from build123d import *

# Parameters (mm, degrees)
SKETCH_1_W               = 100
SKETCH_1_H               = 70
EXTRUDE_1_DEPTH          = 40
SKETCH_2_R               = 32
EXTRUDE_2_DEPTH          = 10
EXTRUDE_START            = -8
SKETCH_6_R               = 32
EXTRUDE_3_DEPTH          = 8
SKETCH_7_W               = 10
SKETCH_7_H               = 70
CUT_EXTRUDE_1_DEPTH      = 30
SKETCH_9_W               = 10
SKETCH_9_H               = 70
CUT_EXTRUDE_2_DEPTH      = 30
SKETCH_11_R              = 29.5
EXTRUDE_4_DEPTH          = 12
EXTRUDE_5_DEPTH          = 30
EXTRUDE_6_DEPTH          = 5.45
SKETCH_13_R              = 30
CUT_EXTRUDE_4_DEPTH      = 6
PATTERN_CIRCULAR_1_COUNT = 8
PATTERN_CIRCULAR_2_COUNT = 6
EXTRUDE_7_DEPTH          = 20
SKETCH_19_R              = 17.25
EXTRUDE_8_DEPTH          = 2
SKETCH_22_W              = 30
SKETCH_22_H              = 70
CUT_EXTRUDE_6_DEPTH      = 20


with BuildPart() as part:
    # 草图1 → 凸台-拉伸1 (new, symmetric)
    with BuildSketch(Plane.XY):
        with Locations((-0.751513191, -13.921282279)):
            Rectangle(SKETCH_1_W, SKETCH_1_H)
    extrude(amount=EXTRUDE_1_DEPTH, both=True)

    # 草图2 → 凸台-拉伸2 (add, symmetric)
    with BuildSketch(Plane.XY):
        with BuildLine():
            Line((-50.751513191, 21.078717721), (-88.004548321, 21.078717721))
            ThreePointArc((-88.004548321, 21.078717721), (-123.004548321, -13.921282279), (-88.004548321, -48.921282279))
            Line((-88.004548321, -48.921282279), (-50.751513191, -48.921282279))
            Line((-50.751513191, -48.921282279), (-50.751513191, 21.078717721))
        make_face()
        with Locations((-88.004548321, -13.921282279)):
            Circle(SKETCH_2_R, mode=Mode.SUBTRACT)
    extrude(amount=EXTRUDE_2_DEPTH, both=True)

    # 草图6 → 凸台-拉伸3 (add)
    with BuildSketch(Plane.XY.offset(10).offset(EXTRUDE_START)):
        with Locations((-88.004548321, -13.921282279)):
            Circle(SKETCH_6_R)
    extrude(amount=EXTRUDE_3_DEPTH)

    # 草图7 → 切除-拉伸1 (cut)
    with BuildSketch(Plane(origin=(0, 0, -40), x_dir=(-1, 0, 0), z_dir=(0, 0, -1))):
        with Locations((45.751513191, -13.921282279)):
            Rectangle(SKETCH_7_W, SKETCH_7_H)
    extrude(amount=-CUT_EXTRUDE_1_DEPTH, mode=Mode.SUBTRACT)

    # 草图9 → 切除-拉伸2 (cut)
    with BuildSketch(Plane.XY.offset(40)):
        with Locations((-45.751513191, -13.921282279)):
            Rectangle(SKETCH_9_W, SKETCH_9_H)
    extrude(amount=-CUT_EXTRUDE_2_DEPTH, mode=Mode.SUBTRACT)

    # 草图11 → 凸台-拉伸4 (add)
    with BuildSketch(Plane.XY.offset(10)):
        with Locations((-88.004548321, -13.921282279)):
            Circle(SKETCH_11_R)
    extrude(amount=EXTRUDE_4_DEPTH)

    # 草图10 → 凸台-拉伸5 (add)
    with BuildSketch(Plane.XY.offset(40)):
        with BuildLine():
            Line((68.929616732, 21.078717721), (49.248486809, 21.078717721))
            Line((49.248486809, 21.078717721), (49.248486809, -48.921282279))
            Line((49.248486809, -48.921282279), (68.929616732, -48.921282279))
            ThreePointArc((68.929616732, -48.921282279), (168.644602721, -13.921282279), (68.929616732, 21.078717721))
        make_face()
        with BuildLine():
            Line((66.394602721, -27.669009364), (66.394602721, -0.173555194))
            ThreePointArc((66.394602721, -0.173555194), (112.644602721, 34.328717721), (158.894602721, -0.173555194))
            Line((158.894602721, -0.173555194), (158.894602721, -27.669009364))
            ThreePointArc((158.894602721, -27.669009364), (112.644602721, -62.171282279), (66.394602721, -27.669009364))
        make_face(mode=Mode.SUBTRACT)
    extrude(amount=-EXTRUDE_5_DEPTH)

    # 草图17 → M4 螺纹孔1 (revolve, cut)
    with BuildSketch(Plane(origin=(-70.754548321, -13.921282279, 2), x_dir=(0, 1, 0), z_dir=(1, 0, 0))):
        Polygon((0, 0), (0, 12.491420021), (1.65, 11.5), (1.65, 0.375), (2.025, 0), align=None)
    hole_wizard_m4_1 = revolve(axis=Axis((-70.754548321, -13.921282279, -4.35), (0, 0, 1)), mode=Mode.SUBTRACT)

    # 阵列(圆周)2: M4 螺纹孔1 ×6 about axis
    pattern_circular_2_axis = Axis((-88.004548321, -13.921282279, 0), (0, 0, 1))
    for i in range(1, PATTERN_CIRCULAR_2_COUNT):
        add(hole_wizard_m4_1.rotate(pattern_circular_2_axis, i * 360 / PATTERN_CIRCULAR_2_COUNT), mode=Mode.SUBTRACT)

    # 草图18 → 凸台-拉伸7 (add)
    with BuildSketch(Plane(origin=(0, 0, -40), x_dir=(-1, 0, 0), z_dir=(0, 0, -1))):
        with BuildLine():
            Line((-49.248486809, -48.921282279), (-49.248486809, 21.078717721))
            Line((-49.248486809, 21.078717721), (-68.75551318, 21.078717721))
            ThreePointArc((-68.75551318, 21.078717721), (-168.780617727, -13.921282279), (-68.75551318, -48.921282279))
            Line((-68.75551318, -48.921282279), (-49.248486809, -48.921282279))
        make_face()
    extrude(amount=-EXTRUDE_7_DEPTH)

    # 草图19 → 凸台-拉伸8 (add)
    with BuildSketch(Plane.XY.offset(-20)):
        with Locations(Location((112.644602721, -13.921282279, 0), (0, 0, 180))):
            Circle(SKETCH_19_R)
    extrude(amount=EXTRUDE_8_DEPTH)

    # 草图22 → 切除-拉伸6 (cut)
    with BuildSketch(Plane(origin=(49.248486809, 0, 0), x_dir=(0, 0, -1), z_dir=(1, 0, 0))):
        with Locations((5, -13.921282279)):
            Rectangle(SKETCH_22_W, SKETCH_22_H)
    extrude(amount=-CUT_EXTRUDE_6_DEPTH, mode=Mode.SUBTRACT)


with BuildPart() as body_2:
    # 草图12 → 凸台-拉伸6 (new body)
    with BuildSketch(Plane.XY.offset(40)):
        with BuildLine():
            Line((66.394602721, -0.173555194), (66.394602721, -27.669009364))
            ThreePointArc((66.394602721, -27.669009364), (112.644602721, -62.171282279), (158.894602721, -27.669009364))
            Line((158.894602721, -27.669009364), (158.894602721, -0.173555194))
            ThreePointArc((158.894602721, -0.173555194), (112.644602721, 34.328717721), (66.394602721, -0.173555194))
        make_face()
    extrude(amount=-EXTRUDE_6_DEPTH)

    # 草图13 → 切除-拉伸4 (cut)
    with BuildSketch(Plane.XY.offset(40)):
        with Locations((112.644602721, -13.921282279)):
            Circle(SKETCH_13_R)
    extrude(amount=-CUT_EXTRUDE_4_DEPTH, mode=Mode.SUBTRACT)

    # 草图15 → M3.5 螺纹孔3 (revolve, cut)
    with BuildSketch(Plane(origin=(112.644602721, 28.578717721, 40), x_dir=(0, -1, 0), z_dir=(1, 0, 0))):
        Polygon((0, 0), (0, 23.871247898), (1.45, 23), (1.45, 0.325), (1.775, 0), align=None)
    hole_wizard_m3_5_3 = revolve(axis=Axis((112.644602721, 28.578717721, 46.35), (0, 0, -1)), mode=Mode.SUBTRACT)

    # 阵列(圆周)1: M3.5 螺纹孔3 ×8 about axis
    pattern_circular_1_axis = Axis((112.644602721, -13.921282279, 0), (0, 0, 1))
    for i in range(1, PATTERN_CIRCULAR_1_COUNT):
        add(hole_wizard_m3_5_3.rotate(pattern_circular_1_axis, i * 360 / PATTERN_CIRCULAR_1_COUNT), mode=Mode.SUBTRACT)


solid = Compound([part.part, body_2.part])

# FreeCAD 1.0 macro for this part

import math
import FreeCAD as App
import Part
import Sketcher
Q = App.Units.Quantity

doc = App.newDocument("Part")
body = doc.addObject("PartDesign::Body", "Body")

sketch1 = body.newObject("Sketcher::SketchObject", "Sketch")
sketch1.AttachmentSupport = (doc.getObject("XY_Plane"), [""])
sketch1.MapMode = "FlatFace"
sketch1.addGeometry(Part.LineSegment(App.Vector(-51, 21, 0), App.Vector(-51, -49, 0)), False)
sketch1.addGeometry(Part.LineSegment(App.Vector(-51, -49, 0), App.Vector(49, -49, 0)), False)
sketch1.addGeometry(Part.LineSegment(App.Vector(49, -49, 0), App.Vector(49, 21, 0)), False)
sketch1.addGeometry(Part.LineSegment(App.Vector(49, 21, 0), App.Vector(-51, 21, 0)), False)
sketch1.addConstraint(Sketcher.Constraint("Coincident", 0, 2, 1, 1))
sketch1.addConstraint(Sketcher.Constraint("Coincident", 1, 2, 2, 1))
sketch1.addConstraint(Sketcher.Constraint("Coincident", 2, 2, 3, 1))
sketch1.addConstraint(Sketcher.Constraint("Coincident", 3, 2, 0, 1))
sketch1.addConstraint(Sketcher.Constraint("Vertical", 0))
sketch1.addConstraint(Sketcher.Constraint("Horizontal", 1))
sketch1.addConstraint(Sketcher.Constraint("Vertical", 2))
sketch1.addConstraint(Sketcher.Constraint("Horizontal", 3))
sketch1.addConstraint(Sketcher.Constraint("DistanceX", 1, 1, 1, 2, Q("100 mm")))
sketch1.addConstraint(Sketcher.Constraint("DistanceY", 0, 2, 0, 1, Q("70 mm")))
sketch1.addConstraint(Sketcher.Constraint("DistanceX", 0, 2, -1, 1, Q("50.751513 mm")))
sketch1.addConstraint(Sketcher.Constraint("DistanceY", 0, 2, -1, 1, Q("48.921282 mm")))
pad1 = body.newObject("PartDesign::Pad", "Pad")
pad1.Profile = sketch1
pad1.Length = 80
pad1.Midplane = True

sketch2 = body.newObject("Sketcher::SketchObject", "Sketch001")
sketch2.AttachmentSupport = (doc.getObject("XY_Plane"), [""])
sketch2.MapMode = "FlatFace"
sketch2.addGeometry(Part.LineSegment(App.Vector(-51, 21, 0), App.Vector(-88, 21, 0)), False)
sketch2.addGeometry(Part.ArcOfCircle(Part.Circle(App.Vector(-88, -14, 0), App.Vector(0, 0, 1), 35), math.radians(90), math.radians(270)), False)
sketch2.addGeometry(Part.LineSegment(App.Vector(-88, -49, 0), App.Vector(-51, -49, 0)), False)
sketch2.addGeometry(Part.LineSegment(App.Vector(-51, -49, 0), App.Vector(-51, 21, 0)), False)
sketch2.addGeometry(Part.Circle(App.Vector(-88, -14, 0), App.Vector(0, 0, 1), 32), False)
sketch2.addConstraint(Sketcher.Constraint("Tangent", 0, 2, 1, 1))
sketch2.addConstraint(Sketcher.Constraint("Tangent", 1, 2, 2, 1))
sketch2.addConstraint(Sketcher.Constraint("Coincident", 2, 2, 3, 1))
sketch2.addConstraint(Sketcher.Constraint("Coincident", 3, 2, 0, 1))
sketch2.addConstraint(Sketcher.Constraint("Horizontal", 0))
sketch2.addConstraint(Sketcher.Constraint("Horizontal", 2))
sketch2.addConstraint(Sketcher.Constraint("Vertical", 3))
sketch2.addConstraint(Sketcher.Constraint("Coincident", 4, 3, 1, 3))
sketch2.addConstraint(Sketcher.Constraint("Diameter", 4, Q("64 mm")))
sketch2.addConstraint(Sketcher.Constraint("Radius", 1, Q("35 mm")))
sketch2.addConstraint(Sketcher.Constraint("DistanceX", 0, 2, 0, 1, Q("37.253035 mm")))
sketch2.addConstraint(Sketcher.Constraint("DistanceX", 1, 3, -1, 1, Q("88.004548 mm")))
sketch2.addConstraint(Sketcher.Constraint("DistanceY", 1, 3, -1, 1, Q("13.921282 mm")))
pad2 = body.newObject("PartDesign::Pad", "Pad001")
pad2.Profile = sketch2
pad2.Length = 20
pad2.Midplane = True

sketch3 = body.newObject("Sketcher::SketchObject", "Sketch002")
sketch3.AttachmentSupport = (doc.getObject("XY_Plane"), [""])
sketch3.MapMode = "FlatFace"
sketch3.AttachmentOffset = App.Placement(App.Vector(0, 0, 2), App.Rotation())
sketch3.addGeometry(Part.Circle(App.Vector(-88, -14, 0), App.Vector(0, 0, 1), 32), False)
sketch3.addConstraint(Sketcher.Constraint("Diameter", 0, Q("64 mm")))
sketch3.addConstraint(Sketcher.Constraint("DistanceX", 0, 3, -1, 1, Q("88.004548 mm")))
sketch3.addConstraint(Sketcher.Constraint("DistanceY", 0, 3, -1, 1, Q("13.921282 mm")))
pad3 = body.newObject("PartDesign::Pad", "Pad002")
pad3.Profile = sketch3
pad3.Length = 8

sketch4 = body.newObject("Sketcher::SketchObject", "Sketch003")
sketch4.AttachmentSupport = (doc.getObject("XY_Plane"), [""])
sketch4.MapMode = "FlatFace"
sketch4.AttachmentOffset = App.Placement(App.Vector(0, 0, -40), App.Rotation())
sketch4.addGeometry(Part.LineSegment(App.Vector(-41, 21, 0), App.Vector(-41, -49, 0)), False)
sketch4.addGeometry(Part.LineSegment(App.Vector(-41, -49, 0), App.Vector(-51, -49, 0)), False)
sketch4.addGeometry(Part.LineSegment(App.Vector(-51, -49, 0), App.Vector(-51, 21, 0)), False)
sketch4.addGeometry(Part.LineSegment(App.Vector(-51, 21, 0), App.Vector(-41, 21, 0)), False)
sketch4.addConstraint(Sketcher.Constraint("Coincident", 0, 2, 1, 1))
sketch4.addConstraint(Sketcher.Constraint("Coincident", 1, 2, 2, 1))
sketch4.addConstraint(Sketcher.Constraint("Coincident", 2, 2, 3, 1))
sketch4.addConstraint(Sketcher.Constraint("Coincident", 3, 2, 0, 1))
sketch4.addConstraint(Sketcher.Constraint("Vertical", 0))
sketch4.addConstraint(Sketcher.Constraint("Horizontal", 1))
sketch4.addConstraint(Sketcher.Constraint("Vertical", 2))
sketch4.addConstraint(Sketcher.Constraint("Horizontal", 3))
sketch4.addConstraint(Sketcher.Constraint("DistanceX", 1, 2, 1, 1, Q("10 mm")))
sketch4.addConstraint(Sketcher.Constraint("DistanceY", 0, 2, 0, 1, Q("70 mm")))
sketch4.addConstraint(Sketcher.Constraint("DistanceX", 0, 2, -1, 1, Q("40.751513 mm")))
sketch4.addConstraint(Sketcher.Constraint("DistanceY", 0, 2, -1, 1, Q("48.921282 mm")))
pocket1 = body.newObject("PartDesign::Pocket", "Pocket")
pocket1.Profile = sketch4
pocket1.Length = 30
pocket1.Reversed = True

sketch5 = body.newObject("Sketcher::SketchObject", "Sketch004")
sketch5.AttachmentSupport = (doc.getObject("XY_Plane"), [""])
sketch5.MapMode = "FlatFace"
sketch5.AttachmentOffset = App.Placement(App.Vector(0, 0, 40), App.Rotation())
sketch5.addGeometry(Part.LineSegment(App.Vector(-51, 21, 0), App.Vector(-51, -49, 0)), False)
sketch5.addGeometry(Part.LineSegment(App.Vector(-51, -49, 0), App.Vector(-41, -49, 0)), False)
sketch5.addGeometry(Part.LineSegment(App.Vector(-41, -49, 0), App.Vector(-41, 21, 0)), False)
sketch5.addGeometry(Part.LineSegment(App.Vector(-41, 21, 0), App.Vector(-51, 21, 0)), False)
sketch5.addConstraint(Sketcher.Constraint("Coincident", 0, 2, 1, 1))
sketch5.addConstraint(Sketcher.Constraint("Coincident", 1, 2, 2, 1))
sketch5.addConstraint(Sketcher.Constraint("Coincident", 2, 2, 3, 1))
sketch5.addConstraint(Sketcher.Constraint("Coincident", 3, 2, 0, 1))
sketch5.addConstraint(Sketcher.Constraint("Vertical", 0))
sketch5.addConstraint(Sketcher.Constraint("Horizontal", 1))
sketch5.addConstraint(Sketcher.Constraint("Vertical", 2))
sketch5.addConstraint(Sketcher.Constraint("Horizontal", 3))
sketch5.addConstraint(Sketcher.Constraint("DistanceX", 1, 1, 1, 2, Q("10 mm")))
sketch5.addConstraint(Sketcher.Constraint("DistanceY", 0, 2, 0, 1, Q("70 mm")))
sketch5.addConstraint(Sketcher.Constraint("DistanceX", 0, 2, -1, 1, Q("50.751513 mm")))
sketch5.addConstraint(Sketcher.Constraint("DistanceY", 0, 2, -1, 1, Q("48.921282 mm")))
pocket2 = body.newObject("PartDesign::Pocket", "Pocket001")
pocket2.Profile = sketch5
pocket2.Length = 30

sketch6 = body.newObject("Sketcher::SketchObject", "Sketch005")
sketch6.AttachmentSupport = (doc.getObject("XY_Plane"), [""])
sketch6.MapMode = "FlatFace"
sketch6.AttachmentOffset = App.Placement(App.Vector(0, 0, 10), App.Rotation())
sketch6.addGeometry(Part.Circle(App.Vector(-88, -14, 0), App.Vector(0, 0, 1), 30), False)
sketch6.addConstraint(Sketcher.Constraint("Diameter", 0, Q("59 mm")))
sketch6.addConstraint(Sketcher.Constraint("DistanceX", 0, 3, -1, 1, Q("88.004548 mm")))
sketch6.addConstraint(Sketcher.Constraint("DistanceY", 0, 3, -1, 1, Q("13.921282 mm")))
pad4 = body.newObject("PartDesign::Pad", "Pad003")
pad4.Profile = sketch6
pad4.Length = 12

sketch7 = body.newObject("Sketcher::SketchObject", "Sketch006")
sketch7.AttachmentSupport = (doc.getObject("XY_Plane"), [""])
sketch7.MapMode = "FlatFace"
sketch7.AttachmentOffset = App.Placement(App.Vector(0, 0, 40), App.Rotation())
sketch7.addGeometry(Part.LineSegment(App.Vector(69, 21, 0), App.Vector(49, 21, 0)), False)
sketch7.addGeometry(Part.LineSegment(App.Vector(49, 21, 0), App.Vector(49, -49, 0)), False)
sketch7.addGeometry(Part.LineSegment(App.Vector(49, -49, 0), App.Vector(69, -49, 0)), False)
sketch7.addGeometry(Part.ArcOfCircle(Part.Circle(App.Vector(113, -14, 0), App.Vector(0, 0, 1), 56), math.radians(-141), math.radians(141)), False)
sketch7.addGeometry(Part.ArcOfCircle(Part.Circle(App.Vector(113, -14, 0), App.Vector(0, 0, 1), 48), math.radians(-163), math.radians(-17)), False)
sketch7.addGeometry(Part.LineSegment(App.Vector(66, -28, 0), App.Vector(66, 0, 0)), False)
sketch7.addGeometry(Part.ArcOfCircle(Part.Circle(App.Vector(113, -14, 0), App.Vector(0, 0, 1), 48), math.radians(17), math.radians(163)), False)
sketch7.addGeometry(Part.LineSegment(App.Vector(159, 0, 0), App.Vector(159, -28, 0)), False)
sketch7.addConstraint(Sketcher.Constraint("Coincident", 0, 2, 1, 1))
sketch7.addConstraint(Sketcher.Constraint("Coincident", 1, 2, 2, 1))
sketch7.addConstraint(Sketcher.Constraint("Coincident", 2, 2, 3, 1))
sketch7.addConstraint(Sketcher.Constraint("Coincident", 3, 2, 0, 1))
sketch7.addConstraint(Sketcher.Constraint("Coincident", 4, 1, 5, 1))
sketch7.addConstraint(Sketcher.Constraint("Coincident", 5, 2, 6, 2))
sketch7.addConstraint(Sketcher.Constraint("Coincident", 6, 1, 7, 1))
sketch7.addConstraint(Sketcher.Constraint("Coincident", 7, 2, 4, 2))
sketch7.addConstraint(Sketcher.Constraint("Horizontal", 0))
sketch7.addConstraint(Sketcher.Constraint("Vertical", 1))
sketch7.addConstraint(Sketcher.Constraint("Horizontal", 2))
sketch7.addConstraint(Sketcher.Constraint("Vertical", 5))
sketch7.addConstraint(Sketcher.Constraint("Vertical", 7))
sketch7.addConstraint(Sketcher.Constraint("Coincident", 4, 3, 3, 3))
sketch7.addConstraint(Sketcher.Constraint("Coincident", 6, 3, 3, 3))
sketch7.addConstraint(Sketcher.Constraint("Equal", 4, 6))
sketch7.addConstraint(Sketcher.Constraint("Horizontal", 5, 2, 6, 1))
sketch7.addConstraint(Sketcher.Constraint("Vertical", 2, 2, 3, 2))
sketch7.addConstraint(Sketcher.Constraint("Radius", 3, Q("56 mm")))
sketch7.addConstraint(Sketcher.Constraint("DistanceY", 1, 2, 1, 1, Q("70 mm")))
sketch7.addConstraint(Sketcher.Constraint("Radius", 4, Q("48.25 mm")))
sketch7.addConstraint(Sketcher.Constraint("DistanceX", 5, 2, 6, 1, Q("92.5 mm")))
sketch7.addConstraint(Sketcher.Constraint("DistanceX", 0, 2, 0, 1, Q("19.68113 mm")))
sketch7.addConstraint(Sketcher.Constraint("DistanceY", 4, 1, -1, 1, Q("27.669009 mm")))
sketch7.addConstraint(Sketcher.Constraint("DistanceX", -1, 1, 3, 3, Q("112.644603 mm")))
pad5 = body.newObject("PartDesign::Pad", "Pad004")
pad5.Profile = sketch7
pad5.Length = 30
pad5.Reversed = True

sketch8 = body.newObject("Sketcher::SketchObject", "Sketch007")
sketch8.AttachmentSupport = (doc.getObject("YZ_Plane"), [""])
sketch8.MapMode = "FlatFace"
sketch8.AttachmentOffset = App.Placement(App.Vector(0, 0, -70.754548), App.Rotation())
sketch8.addGeometry(Part.LineSegment(App.Vector(-13.9, 14.5, 0), App.Vector(-13.9, 2, 0)), False)
sketch8.addGeometry(Part.LineSegment(App.Vector(-13.9, 2, 0), App.Vector(-11.9, 2, 0)), False)
sketch8.addGeometry(Part.LineSegment(App.Vector(-11.9, 2, 0), App.Vector(-12.3, 2.4, 0)), False)
sketch8.addGeometry(Part.LineSegment(App.Vector(-12.3, 2.4, 0), App.Vector(-12.3, 13.5, 0)), False)
sketch8.addGeometry(Part.LineSegment(App.Vector(-12.3, 13.5, 0), App.Vector(-13.9, 14.5, 0)), False)
sketch8.addGeometry(Part.LineSegment(App.Vector(-13.9, 2, 0), App.Vector(-13.9, 14.5, 0)), True)
sketch8.addConstraint(Sketcher.Constraint("Coincident", 0, 2, 1, 1))
sketch8.addConstraint(Sketcher.Constraint("Coincident", 1, 2, 2, 1))
sketch8.addConstraint(Sketcher.Constraint("Coincident", 2, 2, 3, 1))
sketch8.addConstraint(Sketcher.Constraint("Coincident", 3, 2, 4, 1))
sketch8.addConstraint(Sketcher.Constraint("Coincident", 4, 2, 0, 1))
sketch8.addConstraint(Sketcher.Constraint("Vertical", 0))
sketch8.addConstraint(Sketcher.Constraint("Horizontal", 1))
sketch8.addConstraint(Sketcher.Constraint("Vertical", 3))
sketch8.addConstraint(Sketcher.Constraint("Vertical", 5))
sketch8.addConstraint(Sketcher.Constraint("Coincident", 5, 1, 0, 2))
sketch8.addConstraint(Sketcher.Constraint("Equal", 0, 5))
sketch8.addConstraint(Sketcher.Constraint("Angle", 2, Q("135 deg")))
sketch8.addConstraint(Sketcher.Constraint("Angle", 4, Q("149 deg")))
sketch8.addConstraint(Sketcher.Constraint("DistanceY", -1, 1, 0, 2, Q("2 mm")))
sketch8.addConstraint(Sketcher.Constraint("DistanceY", -1, 1, 3, 2, Q("13.5 mm")))
sketch8.addConstraint(Sketcher.Constraint("DistanceX", 1, 1, 1, 2, Q("2.025 mm")))
sketch8.addConstraint(Sketcher.Constraint("DistanceY", 3, 1, 3, 2, Q("11.125 mm")))
sketch8.addConstraint(Sketcher.Constraint("DistanceX", 0, 2, -1, 1, Q("13.921282 mm")))
groove = body.newObject("PartDesign::Groove", "Groove")
groove.Profile = sketch8
groove.ReferenceAxis = (sketch8, ["Axis0"])
groove.Angle = 360
doc.recompute()

datumline = body.newObject("PartDesign::Line", "DatumLine")
datumline.Placement = App.Placement(App.Vector(-88.004548, -13.921282, 0), App.Rotation(App.Vector(0, 0, 1), App.Vector(0, 0, 1)))
polarpattern = body.newObject("PartDesign::PolarPattern", "PolarPattern")
polarpattern.Originals = [groove]
polarpattern.Axis = (datumline, [""])
polarpattern.Angle = 360
polarpattern.Occurrences = 6
body.Tip = polarpattern

sketch9 = body.newObject("Sketcher::SketchObject", "Sketch008")
sketch9.AttachmentSupport = (doc.getObject("XY_Plane"), [""])
sketch9.MapMode = "FlatFace"
sketch9.AttachmentOffset = App.Placement(App.Vector(0, 0, -40), App.Rotation())
sketch9.addGeometry(Part.LineSegment(App.Vector(49, -49, 0), App.Vector(49, 21, 0)), False)
sketch9.addGeometry(Part.LineSegment(App.Vector(49, 21, 0), App.Vector(69, 21, 0)), False)
sketch9.addGeometry(Part.ArcOfCircle(Part.Circle(App.Vector(113, -14, 0), App.Vector(0, 0, 1), 56), math.radians(-141), math.radians(141)), False)
sketch9.addGeometry(Part.LineSegment(App.Vector(69, -49, 0), App.Vector(49, -49, 0)), False)
sketch9.addConstraint(Sketcher.Constraint("Coincident", 0, 2, 1, 1))
sketch9.addConstraint(Sketcher.Constraint("Coincident", 1, 2, 2, 2))
sketch9.addConstraint(Sketcher.Constraint("Coincident", 2, 1, 3, 1))
sketch9.addConstraint(Sketcher.Constraint("Coincident", 3, 2, 0, 1))
sketch9.addConstraint(Sketcher.Constraint("Vertical", 0))
sketch9.addConstraint(Sketcher.Constraint("Horizontal", 1))
sketch9.addConstraint(Sketcher.Constraint("Horizontal", 3))
sketch9.addConstraint(Sketcher.Constraint("Vertical", 1, 2, 2, 1))
sketch9.addConstraint(Sketcher.Constraint("DistanceY", 0, 1, 0, 2, Q("70 mm")))
sketch9.addConstraint(Sketcher.Constraint("Radius", 2, Q("56.136015 mm")))
sketch9.addConstraint(Sketcher.Constraint("DistanceX", 1, 1, 1, 2, Q("19.507026 mm")))
sketch9.addConstraint(Sketcher.Constraint("DistanceX", -1, 1, 2, 3, Q("112.644603 mm")))
sketch9.addConstraint(Sketcher.Constraint("DistanceY", 2, 3, -1, 1, Q("13.921282 mm")))
pad6 = body.newObject("PartDesign::Pad", "Pad005")
pad6.Profile = sketch9
pad6.Length = 20

sketch10 = body.newObject("Sketcher::SketchObject", "Sketch009")
sketch10.AttachmentSupport = (doc.getObject("XY_Plane"), [""])
sketch10.MapMode = "FlatFace"
sketch10.AttachmentOffset = App.Placement(App.Vector(0, 0, -20), App.Rotation())
sketch10.addGeometry(Part.Circle(App.Vector(113, -14, 0), App.Vector(0, 0, 1), 17), False)
sketch10.addConstraint(Sketcher.Constraint("Diameter", 0, Q("34.5 mm")))
sketch10.addConstraint(Sketcher.Constraint("DistanceX", -1, 1, 0, 3, Q("112.644603 mm")))
sketch10.addConstraint(Sketcher.Constraint("DistanceY", 0, 3, -1, 1, Q("13.921282 mm")))
pad7 = body.newObject("PartDesign::Pad", "Pad006")
pad7.Profile = sketch10
pad7.Length = 2

sketch11 = body.newObject("Sketcher::SketchObject", "Sketch010")
sketch11.AttachmentSupport = (doc.getObject("YZ_Plane"), [""])
sketch11.MapMode = "FlatFace"
sketch11.AttachmentOffset = App.Placement(App.Vector(0, 0, 49.248487), App.Rotation())
sketch11.addGeometry(Part.LineSegment(App.Vector(21, 10, 0), App.Vector(-49, 10, 0)), False)
sketch11.addGeometry(Part.LineSegment(App.Vector(-49, 10, 0), App.Vector(-49, -20, 0)), False)
sketch11.addGeometry(Part.LineSegment(App.Vector(-49, -20, 0), App.Vector(21, -20, 0)), False)
sketch11.addGeometry(Part.LineSegment(App.Vector(21, -20, 0), App.Vector(21, 10, 0)), False)
sketch11.addConstraint(Sketcher.Constraint("Coincident", 0, 2, 1, 1))
sketch11.addConstraint(Sketcher.Constraint("Coincident", 1, 2, 2, 1))
sketch11.addConstraint(Sketcher.Constraint("Coincident", 2, 2, 3, 1))
sketch11.addConstraint(Sketcher.Constraint("Coincident", 3, 2, 0, 1))
sketch11.addConstraint(Sketcher.Constraint("Horizontal", 0))
sketch11.addConstraint(Sketcher.Constraint("Vertical", 1))
sketch11.addConstraint(Sketcher.Constraint("Horizontal", 2))
sketch11.addConstraint(Sketcher.Constraint("Vertical", 3))
sketch11.addConstraint(Sketcher.Constraint("DistanceX", 0, 2, 0, 1, Q("70 mm")))
sketch11.addConstraint(Sketcher.Constraint("DistanceY", 1, 2, 1, 1, Q("30 mm")))
sketch11.addConstraint(Sketcher.Constraint("DistanceY", -1, 1, 0, 2, Q("10 mm")))
sketch11.addConstraint(Sketcher.Constraint("DistanceX", 0, 2, -1, 1, Q("48.921282 mm")))
pocket3 = body.newObject("PartDesign::Pocket", "Pocket002")
pocket3.Profile = sketch11
pocket3.Length = 20
body2 = doc.addObject("PartDesign::Body", "Body001")

sketch12 = body2.newObject("Sketcher::SketchObject", "Sketch011")
sketch12.AttachmentSupport = (doc.getObject("XY_Plane001"), [""])
sketch12.MapMode = "FlatFace"
sketch12.AttachmentOffset = App.Placement(App.Vector(0, 0, 40), App.Rotation())
sketch12.addGeometry(Part.LineSegment(App.Vector(66, 0, 0), App.Vector(66, -28, 0)), False)
sketch12.addGeometry(Part.ArcOfCircle(Part.Circle(App.Vector(113, -14, 0), App.Vector(0, 0, 1), 48), math.radians(-163), math.radians(-17)), False)
sketch12.addGeometry(Part.LineSegment(App.Vector(159, -28, 0), App.Vector(159, 0, 0)), False)
sketch12.addGeometry(Part.ArcOfCircle(Part.Circle(App.Vector(113, -14, 0), App.Vector(0, 0, 1), 48), math.radians(17), math.radians(163)), False)
sketch12.addConstraint(Sketcher.Constraint("Coincident", 0, 2, 1, 1))
sketch12.addConstraint(Sketcher.Constraint("Coincident", 1, 2, 2, 1))
sketch12.addConstraint(Sketcher.Constraint("Coincident", 2, 2, 3, 1))
sketch12.addConstraint(Sketcher.Constraint("Coincident", 3, 2, 0, 1))
sketch12.addConstraint(Sketcher.Constraint("Vertical", 0))
sketch12.addConstraint(Sketcher.Constraint("Vertical", 2))
sketch12.addConstraint(Sketcher.Constraint("Coincident", 3, 3, 1, 3))
sketch12.addConstraint(Sketcher.Constraint("Equal", 1, 3))
sketch12.addConstraint(Sketcher.Constraint("Horizontal", 0, 2, 1, 2))
sketch12.addConstraint(Sketcher.Constraint("Radius", 1, Q("48.25 mm")))
sketch12.addConstraint(Sketcher.Constraint("DistanceX", 0, 2, 1, 2, Q("92.5 mm")))
sketch12.addConstraint(Sketcher.Constraint("DistanceY", 0, 2, -1, 1, Q("27.669009 mm")))
sketch12.addConstraint(Sketcher.Constraint("DistanceX", -1, 1, 1, 3, Q("112.644603 mm")))
pad8 = body2.newObject("PartDesign::Pad", "Pad007")
pad8.Profile = sketch12
pad8.Length = 5.45
pad8.Reversed = True

sketch13 = body2.newObject("Sketcher::SketchObject", "Sketch012")
sketch13.AttachmentSupport = (doc.getObject("XY_Plane001"), [""])
sketch13.MapMode = "FlatFace"
sketch13.AttachmentOffset = App.Placement(App.Vector(0, 0, 40), App.Rotation())
sketch13.addGeometry(Part.Circle(App.Vector(113, -14, 0), App.Vector(0, 0, 1), 30), False)
sketch13.addConstraint(Sketcher.Constraint("Diameter", 0, Q("60 mm")))
sketch13.addConstraint(Sketcher.Constraint("DistanceX", -1, 1, 0, 3, Q("112.644603 mm")))
sketch13.addConstraint(Sketcher.Constraint("DistanceY", 0, 3, -1, 1, Q("13.921282 mm")))
pocket4 = body2.newObject("PartDesign::Pocket", "Pocket003")
pocket4.Profile = sketch13
pocket4.Length = 6

sketch14 = body2.newObject("Sketcher::SketchObject", "Sketch013")
sketch14.AttachmentSupport = (doc.getObject("YZ_Plane001"), [""])
sketch14.MapMode = "FlatFace"
sketch14.AttachmentOffset = App.Placement(App.Vector(0, 0, 112.644603), App.Rotation())
sketch14.addGeometry(Part.LineSegment(App.Vector(28.58, 16.13, 0), App.Vector(28.58, 40, 0)), False)
sketch14.addGeometry(Part.LineSegment(App.Vector(28.58, 40, 0), App.Vector(26.8, 40, 0)), False)
sketch14.addGeometry(Part.LineSegment(App.Vector(26.8, 40, 0), App.Vector(27.13, 39.67, 0)), False)
sketch14.addGeometry(Part.LineSegment(App.Vector(27.13, 39.67, 0), App.Vector(27.13, 17, 0)), False)
sketch14.addGeometry(Part.LineSegment(App.Vector(27.13, 17, 0), App.Vector(28.58, 16.13, 0)), False)
sketch14.addGeometry(Part.LineSegment(App.Vector(28.58, 40, 0), App.Vector(28.58, 16.13, 0)), True)
sketch14.addConstraint(Sketcher.Constraint("Coincident", 0, 2, 1, 1))
sketch14.addConstraint(Sketcher.Constraint("Coincident", 1, 2, 2, 1))
sketch14.addConstraint(Sketcher.Constraint("Coincident", 2, 2, 3, 1))
sketch14.addConstraint(Sketcher.Constraint("Coincident", 3, 2, 4, 1))
sketch14.addConstraint(Sketcher.Constraint("Coincident", 4, 2, 0, 1))
sketch14.addConstraint(Sketcher.Constraint("Vertical", 0))
sketch14.addConstraint(Sketcher.Constraint("Horizontal", 1))
sketch14.addConstraint(Sketcher.Constraint("Vertical", 3))
sketch14.addConstraint(Sketcher.Constraint("Vertical", 5))
sketch14.addConstraint(Sketcher.Constraint("Coincident", 5, 1, 0, 2))
sketch14.addConstraint(Sketcher.Constraint("Equal", 0, 5))
sketch14.addConstraint(Sketcher.Constraint("Angle", 2, Q("-45 deg")))
sketch14.addConstraint(Sketcher.Constraint("Angle", 4, Q("-31 deg")))
sketch14.addConstraint(Sketcher.Constraint("DistanceY", -1, 1, 0, 2, Q("40 mm")))
sketch14.addConstraint(Sketcher.Constraint("DistanceY", -1, 1, 3, 2, Q("17 mm")))
sketch14.addConstraint(Sketcher.Constraint("DistanceX", 1, 2, 1, 1, Q("1.775 mm")))
sketch14.addConstraint(Sketcher.Constraint("DistanceY", 3, 2, 3, 1, Q("22.675 mm")))
sketch14.addConstraint(Sketcher.Constraint("DistanceX", -1, 1, 0, 2, Q("28.578718 mm")))
groove2 = body2.newObject("PartDesign::Groove", "Groove001")
groove2.Profile = sketch14
groove2.ReferenceAxis = (sketch14, ["Axis0"])
groove2.Angle = 360
doc.recompute()

datumline2 = body2.newObject("PartDesign::Line", "DatumLine001")
datumline2.Placement = App.Placement(App.Vector(112.644603, -13.921282, 0), App.Rotation(App.Vector(0, 0, 1), App.Vector(0, 0, 1)))
polarpattern2 = body2.newObject("PartDesign::PolarPattern", "PolarPattern001")
polarpattern2.Originals = [groove2]
polarpattern2.Axis = (datumline2, [""])
polarpattern2.Angle = 360
polarpattern2.Occurrences = 8
body2.Tip = polarpattern2

doc.recompute()
